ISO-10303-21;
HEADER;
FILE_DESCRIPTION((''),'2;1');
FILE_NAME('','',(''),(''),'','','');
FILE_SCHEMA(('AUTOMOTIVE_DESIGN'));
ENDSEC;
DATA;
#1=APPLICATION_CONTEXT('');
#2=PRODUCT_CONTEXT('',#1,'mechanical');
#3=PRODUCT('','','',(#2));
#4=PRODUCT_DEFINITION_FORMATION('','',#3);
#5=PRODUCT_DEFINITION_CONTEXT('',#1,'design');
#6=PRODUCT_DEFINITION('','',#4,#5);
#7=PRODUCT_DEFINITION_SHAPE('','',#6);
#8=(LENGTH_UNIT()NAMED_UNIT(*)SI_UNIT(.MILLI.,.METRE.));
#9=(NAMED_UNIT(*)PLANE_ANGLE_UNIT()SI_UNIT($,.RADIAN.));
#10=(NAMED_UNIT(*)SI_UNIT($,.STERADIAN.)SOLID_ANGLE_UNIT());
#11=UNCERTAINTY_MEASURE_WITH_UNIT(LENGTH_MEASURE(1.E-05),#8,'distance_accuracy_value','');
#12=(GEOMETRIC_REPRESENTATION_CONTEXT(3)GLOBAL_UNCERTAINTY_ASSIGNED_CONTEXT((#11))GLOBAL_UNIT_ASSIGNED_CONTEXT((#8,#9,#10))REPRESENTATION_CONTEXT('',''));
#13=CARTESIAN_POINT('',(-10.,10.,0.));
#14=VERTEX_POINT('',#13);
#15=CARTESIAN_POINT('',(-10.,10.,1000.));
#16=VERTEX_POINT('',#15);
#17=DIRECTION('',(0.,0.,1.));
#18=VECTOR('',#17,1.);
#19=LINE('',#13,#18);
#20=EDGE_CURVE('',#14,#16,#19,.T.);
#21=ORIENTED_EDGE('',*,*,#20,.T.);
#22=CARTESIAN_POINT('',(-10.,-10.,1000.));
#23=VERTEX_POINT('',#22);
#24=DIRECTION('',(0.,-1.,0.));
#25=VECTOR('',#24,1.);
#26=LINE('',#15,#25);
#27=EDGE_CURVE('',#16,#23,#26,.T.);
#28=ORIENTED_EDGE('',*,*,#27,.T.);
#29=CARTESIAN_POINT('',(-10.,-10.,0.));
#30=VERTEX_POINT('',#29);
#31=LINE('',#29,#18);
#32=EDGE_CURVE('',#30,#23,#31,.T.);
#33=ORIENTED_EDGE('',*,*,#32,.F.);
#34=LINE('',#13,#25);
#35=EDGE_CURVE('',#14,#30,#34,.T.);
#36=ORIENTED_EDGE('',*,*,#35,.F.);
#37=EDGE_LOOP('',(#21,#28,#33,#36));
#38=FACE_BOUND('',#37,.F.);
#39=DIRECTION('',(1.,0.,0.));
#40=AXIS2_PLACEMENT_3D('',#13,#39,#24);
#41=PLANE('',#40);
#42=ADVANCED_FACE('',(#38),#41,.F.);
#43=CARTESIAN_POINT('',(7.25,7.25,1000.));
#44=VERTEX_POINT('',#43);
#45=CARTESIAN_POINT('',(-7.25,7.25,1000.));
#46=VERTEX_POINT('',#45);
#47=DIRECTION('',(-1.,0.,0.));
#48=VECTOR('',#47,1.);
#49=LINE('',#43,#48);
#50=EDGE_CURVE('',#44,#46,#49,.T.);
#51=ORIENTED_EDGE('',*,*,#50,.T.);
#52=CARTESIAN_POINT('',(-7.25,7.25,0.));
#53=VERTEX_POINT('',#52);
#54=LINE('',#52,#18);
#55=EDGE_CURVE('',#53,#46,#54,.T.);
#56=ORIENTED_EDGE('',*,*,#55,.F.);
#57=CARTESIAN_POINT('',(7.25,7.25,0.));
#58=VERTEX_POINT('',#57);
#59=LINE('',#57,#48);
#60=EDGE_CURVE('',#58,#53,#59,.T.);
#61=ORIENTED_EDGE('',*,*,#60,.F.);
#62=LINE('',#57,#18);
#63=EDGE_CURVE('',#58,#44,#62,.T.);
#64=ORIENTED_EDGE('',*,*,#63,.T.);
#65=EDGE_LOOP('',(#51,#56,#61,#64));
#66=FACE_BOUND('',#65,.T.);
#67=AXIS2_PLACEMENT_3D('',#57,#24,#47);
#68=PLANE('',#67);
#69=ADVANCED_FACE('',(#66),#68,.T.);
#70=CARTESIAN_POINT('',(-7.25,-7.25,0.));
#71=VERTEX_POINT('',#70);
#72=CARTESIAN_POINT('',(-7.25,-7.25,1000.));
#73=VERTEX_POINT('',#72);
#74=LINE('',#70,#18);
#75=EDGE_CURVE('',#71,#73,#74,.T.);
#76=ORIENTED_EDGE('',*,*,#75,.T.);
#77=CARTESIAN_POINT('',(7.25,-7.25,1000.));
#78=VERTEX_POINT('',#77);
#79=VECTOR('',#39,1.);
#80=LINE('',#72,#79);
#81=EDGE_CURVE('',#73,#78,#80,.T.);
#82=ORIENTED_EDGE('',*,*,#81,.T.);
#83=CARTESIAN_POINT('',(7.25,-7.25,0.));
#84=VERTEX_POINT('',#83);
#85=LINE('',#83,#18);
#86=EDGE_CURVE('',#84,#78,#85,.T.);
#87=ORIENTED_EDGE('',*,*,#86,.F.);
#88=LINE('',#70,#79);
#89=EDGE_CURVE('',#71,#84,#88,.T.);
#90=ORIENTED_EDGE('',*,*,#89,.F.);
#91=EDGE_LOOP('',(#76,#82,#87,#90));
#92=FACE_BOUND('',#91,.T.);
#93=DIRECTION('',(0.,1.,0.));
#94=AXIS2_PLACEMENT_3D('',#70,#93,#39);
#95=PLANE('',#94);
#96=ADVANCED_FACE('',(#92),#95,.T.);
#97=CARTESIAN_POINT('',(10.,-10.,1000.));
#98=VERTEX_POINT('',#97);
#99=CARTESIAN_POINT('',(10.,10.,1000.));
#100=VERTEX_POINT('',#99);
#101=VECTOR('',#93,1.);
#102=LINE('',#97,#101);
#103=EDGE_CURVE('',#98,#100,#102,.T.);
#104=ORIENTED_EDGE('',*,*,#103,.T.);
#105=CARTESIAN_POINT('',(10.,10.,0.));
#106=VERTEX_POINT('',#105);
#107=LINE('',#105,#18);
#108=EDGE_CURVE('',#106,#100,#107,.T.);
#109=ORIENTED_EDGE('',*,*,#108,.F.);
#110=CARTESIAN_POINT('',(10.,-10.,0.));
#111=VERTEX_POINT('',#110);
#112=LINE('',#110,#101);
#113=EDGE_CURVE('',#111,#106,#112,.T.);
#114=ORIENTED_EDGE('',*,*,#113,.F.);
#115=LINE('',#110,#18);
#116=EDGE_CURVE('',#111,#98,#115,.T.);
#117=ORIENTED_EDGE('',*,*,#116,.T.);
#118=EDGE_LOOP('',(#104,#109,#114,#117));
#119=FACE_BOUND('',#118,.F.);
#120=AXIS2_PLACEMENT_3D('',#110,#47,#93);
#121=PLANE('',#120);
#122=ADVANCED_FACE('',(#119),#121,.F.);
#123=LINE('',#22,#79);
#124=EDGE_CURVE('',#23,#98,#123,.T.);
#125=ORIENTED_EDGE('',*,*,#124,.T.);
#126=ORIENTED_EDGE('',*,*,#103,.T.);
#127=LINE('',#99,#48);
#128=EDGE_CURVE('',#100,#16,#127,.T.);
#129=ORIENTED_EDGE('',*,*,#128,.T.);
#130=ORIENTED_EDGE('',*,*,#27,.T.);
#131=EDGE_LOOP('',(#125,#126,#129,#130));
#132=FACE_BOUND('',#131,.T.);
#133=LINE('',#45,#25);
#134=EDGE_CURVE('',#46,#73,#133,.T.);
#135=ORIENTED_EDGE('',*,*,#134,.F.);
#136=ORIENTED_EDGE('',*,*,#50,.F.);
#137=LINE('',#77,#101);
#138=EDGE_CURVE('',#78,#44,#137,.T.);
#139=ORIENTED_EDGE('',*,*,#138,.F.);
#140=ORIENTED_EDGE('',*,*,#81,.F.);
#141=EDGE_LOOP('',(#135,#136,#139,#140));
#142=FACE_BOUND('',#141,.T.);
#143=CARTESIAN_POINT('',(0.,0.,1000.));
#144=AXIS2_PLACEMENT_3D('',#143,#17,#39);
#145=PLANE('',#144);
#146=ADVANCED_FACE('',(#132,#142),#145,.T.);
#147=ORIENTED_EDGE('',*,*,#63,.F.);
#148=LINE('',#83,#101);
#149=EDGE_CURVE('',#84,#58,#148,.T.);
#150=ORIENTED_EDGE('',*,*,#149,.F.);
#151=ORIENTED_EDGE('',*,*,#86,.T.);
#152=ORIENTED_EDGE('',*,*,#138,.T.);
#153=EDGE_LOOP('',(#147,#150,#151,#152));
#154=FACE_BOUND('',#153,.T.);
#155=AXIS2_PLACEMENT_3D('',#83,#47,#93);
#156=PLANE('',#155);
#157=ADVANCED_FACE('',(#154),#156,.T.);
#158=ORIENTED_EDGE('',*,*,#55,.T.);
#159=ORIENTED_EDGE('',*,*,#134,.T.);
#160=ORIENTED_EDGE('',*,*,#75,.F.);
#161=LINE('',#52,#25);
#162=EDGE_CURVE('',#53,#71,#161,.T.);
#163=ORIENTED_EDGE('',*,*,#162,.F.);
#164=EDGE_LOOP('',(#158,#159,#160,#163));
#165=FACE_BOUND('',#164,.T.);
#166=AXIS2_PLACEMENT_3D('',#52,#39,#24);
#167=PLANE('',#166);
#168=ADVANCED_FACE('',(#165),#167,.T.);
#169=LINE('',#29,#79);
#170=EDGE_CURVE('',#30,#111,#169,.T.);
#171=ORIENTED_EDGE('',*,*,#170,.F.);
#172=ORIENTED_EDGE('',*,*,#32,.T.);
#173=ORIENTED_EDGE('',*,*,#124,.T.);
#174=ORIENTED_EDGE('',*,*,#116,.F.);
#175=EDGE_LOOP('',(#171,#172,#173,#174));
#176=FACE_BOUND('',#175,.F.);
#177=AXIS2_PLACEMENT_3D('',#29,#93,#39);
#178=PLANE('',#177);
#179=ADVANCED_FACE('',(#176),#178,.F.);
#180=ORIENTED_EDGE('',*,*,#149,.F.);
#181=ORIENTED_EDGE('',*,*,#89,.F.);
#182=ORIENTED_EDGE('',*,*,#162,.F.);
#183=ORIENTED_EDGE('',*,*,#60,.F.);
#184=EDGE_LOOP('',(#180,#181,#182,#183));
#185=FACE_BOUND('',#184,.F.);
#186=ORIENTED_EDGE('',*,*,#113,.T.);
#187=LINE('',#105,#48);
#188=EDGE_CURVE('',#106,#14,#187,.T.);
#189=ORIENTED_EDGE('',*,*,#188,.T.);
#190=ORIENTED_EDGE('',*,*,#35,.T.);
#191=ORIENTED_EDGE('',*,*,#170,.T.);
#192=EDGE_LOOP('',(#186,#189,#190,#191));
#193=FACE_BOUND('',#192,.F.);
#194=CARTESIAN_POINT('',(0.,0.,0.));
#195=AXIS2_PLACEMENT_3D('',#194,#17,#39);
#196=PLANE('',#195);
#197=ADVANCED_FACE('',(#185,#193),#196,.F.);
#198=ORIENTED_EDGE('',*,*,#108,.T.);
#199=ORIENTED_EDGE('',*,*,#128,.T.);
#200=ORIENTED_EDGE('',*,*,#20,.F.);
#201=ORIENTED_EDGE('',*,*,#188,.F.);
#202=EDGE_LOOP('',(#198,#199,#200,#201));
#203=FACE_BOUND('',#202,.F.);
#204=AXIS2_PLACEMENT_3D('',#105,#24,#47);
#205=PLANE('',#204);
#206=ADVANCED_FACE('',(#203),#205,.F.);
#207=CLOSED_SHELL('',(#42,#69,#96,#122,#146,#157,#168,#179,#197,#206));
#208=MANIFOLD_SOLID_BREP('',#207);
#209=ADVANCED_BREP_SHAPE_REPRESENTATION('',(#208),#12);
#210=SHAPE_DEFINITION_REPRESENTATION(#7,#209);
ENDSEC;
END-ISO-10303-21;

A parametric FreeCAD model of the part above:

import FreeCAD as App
import Part
import Sketcher

V = App.Vector
Q = App.Units.Quantity

doc = App.newDocument("Part")
body = doc.addObject("PartDesign::Body", "Body")

sketch1 = body.newObject("Sketcher::SketchObject", "Sketch")
sketch1.AttachmentSupport = (doc.getObject("XY_Plane"), [""])
sketch1.MapMode = "FlatFace"
sketch1.addGeometry([
    Part.LineSegment(V(-10, 10, 0), V(-10, -10, 0)),
    Part.LineSegment(V(-10, -10, 0), V(10, -10, 0)),
    Part.LineSegment(V(10, -10, 0), V(10, 10, 0)),
    Part.LineSegment(V(10, 10, 0), V(-10, 10, 0)),
    Part.LineSegment(V(7.25, -7.25, 0), V(-7.25, -7.25, 0)),
    Part.LineSegment(V(-7.25, -7.25, 0), V(-7.25, 7.25, 0)),
    Part.LineSegment(V(-7.25, 7.25, 0), V(7.25, 7.25, 0)),
    Part.LineSegment(V(7.25, 7.25, 0), V(7.25, -7.25, 0)),
], False)
sketch1.addConstraint([
    Sketcher.Constraint("Coincident", 0, 2, 1, 1),
    Sketcher.Constraint("Coincident", 1, 2, 2, 1),
    Sketcher.Constraint("Coincident", 2, 2, 3, 1),
    Sketcher.Constraint("Coincident", 3, 2, 0, 1),
    Sketcher.Constraint("Coincident", 4, 2, 5, 1),
    Sketcher.Constraint("Coincident", 5, 2, 6, 1),
    Sketcher.Constraint("Coincident", 6, 2, 7, 1),
    Sketcher.Constraint("Coincident", 7, 2, 4, 1),
    Sketcher.Constraint("Vertical", 0),
    Sketcher.Constraint("Horizontal", 1),
    Sketcher.Constraint("Vertical", 2),
    Sketcher.Constraint("Horizontal", 3),
    Sketcher.Constraint("Horizontal", 4),
    Sketcher.Constraint("Vertical", 5),
    Sketcher.Constraint("Horizontal", 6),
    Sketcher.Constraint("Vertical", 7),
    Sketcher.Constraint("Symmetric", 0, 2, 2, 2, -1, 1),
    Sketcher.Constraint("Symmetric", 4, 2, 6, 2, -1, 1),
    Sketcher.Constraint("Equal", 3, 0),
    Sketcher.Constraint("Equal", 6, 5),
    Sketcher.Constraint("DistanceX", 1, 1, 1, 2, Q("20 mm")),
    Sketcher.Constraint("DistanceX", 4, 2, 4, 1, Q("14.5 mm")),
])
pad1 = body.newObject("PartDesign::Pad", "Pad")
pad1.Profile = sketch1
pad1.Length = 1000

doc.recompute()
